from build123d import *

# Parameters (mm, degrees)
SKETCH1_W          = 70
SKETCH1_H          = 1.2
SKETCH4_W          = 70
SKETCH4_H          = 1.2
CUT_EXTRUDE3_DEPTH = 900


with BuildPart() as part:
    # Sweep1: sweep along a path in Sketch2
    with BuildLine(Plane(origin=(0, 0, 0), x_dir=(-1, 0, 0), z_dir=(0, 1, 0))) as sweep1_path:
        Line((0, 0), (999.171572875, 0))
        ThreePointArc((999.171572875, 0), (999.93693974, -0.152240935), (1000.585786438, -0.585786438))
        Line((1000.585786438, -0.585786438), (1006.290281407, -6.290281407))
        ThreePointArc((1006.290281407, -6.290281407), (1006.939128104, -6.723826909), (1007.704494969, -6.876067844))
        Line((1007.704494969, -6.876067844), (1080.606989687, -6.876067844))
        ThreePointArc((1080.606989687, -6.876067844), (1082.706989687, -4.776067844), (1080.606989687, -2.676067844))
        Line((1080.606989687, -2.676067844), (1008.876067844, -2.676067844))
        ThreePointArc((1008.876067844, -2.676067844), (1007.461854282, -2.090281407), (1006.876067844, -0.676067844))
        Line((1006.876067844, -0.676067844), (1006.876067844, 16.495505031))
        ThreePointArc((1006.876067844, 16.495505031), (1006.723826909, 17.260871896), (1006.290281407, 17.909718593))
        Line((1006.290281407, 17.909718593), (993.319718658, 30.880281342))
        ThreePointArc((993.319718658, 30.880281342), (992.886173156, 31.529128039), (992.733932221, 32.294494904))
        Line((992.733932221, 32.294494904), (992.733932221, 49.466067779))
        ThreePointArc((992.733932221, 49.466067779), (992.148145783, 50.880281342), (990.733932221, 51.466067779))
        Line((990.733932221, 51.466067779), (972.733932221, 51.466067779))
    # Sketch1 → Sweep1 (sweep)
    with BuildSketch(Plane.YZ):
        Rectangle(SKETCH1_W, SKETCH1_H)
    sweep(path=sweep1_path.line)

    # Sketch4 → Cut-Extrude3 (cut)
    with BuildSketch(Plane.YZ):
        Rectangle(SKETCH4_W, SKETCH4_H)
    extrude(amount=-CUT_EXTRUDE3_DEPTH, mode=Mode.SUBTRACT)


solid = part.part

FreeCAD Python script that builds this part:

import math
import FreeCAD as App
import Part
import Sketcher
Q = App.Units.Quantity


def add_polygon(sketch, points):
    """Adds a closed chain of lines whose ends are joined by coincident constraints."""
    first, n = sketch.GeometryCount, len(points)
    for a, b in zip(points, points[1:] + points[:1]):
        sketch.addGeometry(Part.LineSegment(App.Vector(*a, 0), App.Vector(*b, 0)), False)
    for i in range(n):
        sketch.addConstraint(Sketcher.Constraint("Coincident", first + i, 2, first + (i + 1) % n, 1))

doc = App.newDocument("Part")
params = doc.addObject("Spreadsheet::Sheet", "Params")
for row, (alias, value) in enumerate([
    ("sketch1_width", "70 mm"),
    ("sketch1_height", "1.2 mm"),
    ("sketch2_radius", "2 mm"),
    ("sketch2_radius2", "2.1 mm"),
    ("sketch2_width", "18 mm"),
    ("sketch3_width", "70 mm"),
    ("sketch3_height", "1.2 mm"),
    ("pocket1_length", "900 mm"),
], start=1):
    params.set(f"A{row}", alias)
    params.set(f"B{row}", "=" + value)
    params.setAlias(f"B{row}", alias)

body = doc.addObject("PartDesign::Body", "Body")

sketch1 = body.newObject("Sketcher::SketchObject", "Sketch")
sketch1.AttachmentSupport = (doc.getObject("YZ_Plane"), [""])
sketch1.MapMode = "FlatFace"
add_polygon(sketch1, [(-35, 0.6), (-35, -0.6), (35, -0.6), (35, 0.6)])
sketch1.addConstraint([
    Sketcher.Constraint("Vertical", 0),
    Sketcher.Constraint("Horizontal", 1),
    Sketcher.Constraint("Vertical", 2),
    Sketcher.Constraint("Horizontal", 3),
    Sketcher.Constraint("Symmetric", 0, 2, 2, 2, -1, 1),
    Sketcher.Constraint("DistanceX", 1, 1, 1, 2, 70.0),
    Sketcher.Constraint("DistanceY", 0, 2, 0, 1, 1.2),
])
sketch1.setExpression("Constraints[9]", "Params.sketch1_width")
sketch1.setExpression("Constraints[10]", "Params.sketch1_height")

sketch2 = body.newObject("Sketcher::SketchObject", "Sketch001")
sketch2.AttachmentSupport = (doc.getObject("XZ_Plane"), [""])
sketch2.MapMode = "FlatFace"
sketch2.addGeometry([
    Part.LineSegment(App.Vector(0, 0, 0), App.Vector(-999.2, 0, 0)),
    Part.ArcOfCircle(Part.Circle(App.Vector(-999.2, -2, 0), App.Vector(0, 0, 1), 2), math.radians(90), math.radians(135)),
    Part.LineSegment(App.Vector(-1000.6, -0.6, 0), App.Vector(-1006.3, -6.3, 0)),
    Part.ArcOfCircle(Part.Circle(App.Vector(-1007.7, -4.9, 0), App.Vector(0, 0, 1), 2), math.radians(-90), math.radians(-45)),
    Part.LineSegment(App.Vector(-1007.7, -6.9, 0), App.Vector(-1080.6, -6.9, 0)),
    Part.ArcOfCircle(Part.Circle(App.Vector(-1080.6, -4.8, 0), App.Vector(0, 0, 1), 2.1), math.radians(90), math.radians(270)),
    Part.LineSegment(App.Vector(-1080.6, -2.7, 0), App.Vector(-1008.9, -2.7, 0)),
    Part.ArcOfCircle(Part.Circle(App.Vector(-1008.9, -0.7, 0), App.Vector(0, 0, 1), 2), math.radians(-90), math.radians(0)),
    Part.LineSegment(App.Vector(-1006.9, -0.7, 0), App.Vector(-1006.9, 16.5, 0)),
    Part.ArcOfCircle(Part.Circle(App.Vector(-1004.9, 16.5, 0), App.Vector(0, 0, 1), 2), math.radians(135), math.radians(180)),
    Part.LineSegment(App.Vector(-1006.3, 17.9, 0), App.Vector(-993.3, 30.9, 0)),
    Part.ArcOfCircle(Part.Circle(App.Vector(-994.7, 32.3, 0), App.Vector(0, 0, 1), 2), math.radians(-45), math.radians(0)),
    Part.LineSegment(App.Vector(-992.7, 32.3, 0), App.Vector(-992.7, 49.5, 0)),
    Part.ArcOfCircle(Part.Circle(App.Vector(-990.7, 49.5, 0), App.Vector(0, 0, 1), 2), math.radians(90), math.radians(180)),
    Part.LineSegment(App.Vector(-990.7, 51.5, 0), App.Vector(-972.7, 51.5, 0)),
], False)
sketch2.addConstraint([
    Sketcher.Constraint("Tangent", 0, 2, 1, 1),
    Sketcher.Constraint("Tangent", 1, 2, 2, 1),
    Sketcher.Constraint("Tangent", 2, 2, 3, 2),
    Sketcher.Constraint("Tangent", 3, 1, 4, 1),
    Sketcher.Constraint("Tangent", 4, 2, 5, 2),
    Sketcher.Constraint("Tangent", 5, 1, 6, 1),
    Sketcher.Constraint("Tangent", 6, 2, 7, 1),
    Sketcher.Constraint("Tangent", 7, 2, 8, 1),
    Sketcher.Constraint("Tangent", 8, 2, 9, 2),
    Sketcher.Constraint("Tangent", 9, 1, 10, 1),
    Sketcher.Constraint("Tangent", 10, 2, 11, 1),
    Sketcher.Constraint("Tangent", 11, 2, 12, 1),
    Sketcher.Constraint("Tangent", 12, 2, 13, 2),
    Sketcher.Constraint("Tangent", 13, 1, 14, 1),
    Sketcher.Constraint("Horizontal", 0),
    Sketcher.Constraint("Horizontal", 4),
    Sketcher.Constraint("Horizontal", 6),
    Sketcher.Constraint("Vertical", 8),
    Sketcher.Constraint("Vertical", 12),
    Sketcher.Constraint("Horizontal", 14),
    Sketcher.Constraint("Coincident", 0, 1, -1, 1),
    Sketcher.Constraint("Equal", 1, 3),
    Sketcher.Constraint("Equal", 3, 7),
    Sketcher.Constraint("Equal", 7, 9),
    Sketcher.Constraint("Equal", 9, 11),
    Sketcher.Constraint("Equal", 11, 13),
    Sketcher.Constraint("Parallel", 2, 10),
    Sketcher.Constraint("Vertical", 2, 2, 9, 1),
    Sketcher.Constraint("Equal", 8, 12),
    Sketcher.Constraint("Radius", 1, 2.0),
    Sketcher.Constraint("Radius", 5, 2.1),
    Sketcher.Constraint("DistanceX", 14, 1, 14, 2, 18.0),
    Sketcher.Constraint("Angle", 2, Q("-135 deg")),
    Sketcher.Constraint("DistanceX", 6, 1, 6, 2, 71.730922),
    Sketcher.Constraint("DistanceX", 0, 2, 0, 1, 999.171573),
    Sketcher.Constraint("DistanceY", 8, 1, 8, 2, 17.171573),
    Sketcher.Constraint("DistanceX", 5, 3, -1, 1, 1080.60699),
    Sketcher.Constraint("DistanceX", 10, 2, -1, 1, 993.319719),
])
sketch2.setExpression("Constraints[29]", "Params.sketch2_radius")
sketch2.setExpression("Constraints[30]", "Params.sketch2_radius2")
sketch2.setExpression("Constraints[31]", "Params.sketch2_width")
doc.recompute()

additivepipe = body.newObject("PartDesign::AdditivePipe", "AdditivePipe")
additivepipe.Profile = sketch1
additivepipe.Spine = (sketch2, ["Edge1", "Edge2", "Edge3", "Edge4", "Edge5", "Edge6", "Edge7", "Edge8", "Edge9", "Edge10", "Edge11", "Edge12", "Edge13", "Edge14", "Edge15"])

sketch3 = body.newObject("Sketcher::SketchObject", "Sketch002")
sketch3.AttachmentSupport = (doc.getObject("YZ_Plane"), [""])
sketch3.MapMode = "FlatFace"
add_polygon(sketch3, [(-35, 0.6), (-35, -0.6), (35, -0.6), (35, 0.6)])
sketch3.addConstraint([
    Sketcher.Constraint("Vertical", 0),
    Sketcher.Constraint("Horizontal", 1),
    Sketcher.Constraint("Vertical", 2),
    Sketcher.Constraint("Horizontal", 3),
    Sketcher.Constraint("Symmetric", 0, 2, 2, 2, -1, 1),
    Sketcher.Constraint("DistanceX", 1, 1, 1, 2, 70.0),
    Sketcher.Constraint("DistanceY", 0, 2, 0, 1, 1.2),
])
sketch3.setExpression("Constraints[9]", "Params.sketch3_width")
sketch3.setExpression("Constraints[10]", "Params.sketch3_height")
pocket1 = body.newObject("PartDesign::Pocket", "Pocket")
pocket1.Profile = sketch3
pocket1.setExpression("Length", "Params.pocket1_length")

doc.recompute()
